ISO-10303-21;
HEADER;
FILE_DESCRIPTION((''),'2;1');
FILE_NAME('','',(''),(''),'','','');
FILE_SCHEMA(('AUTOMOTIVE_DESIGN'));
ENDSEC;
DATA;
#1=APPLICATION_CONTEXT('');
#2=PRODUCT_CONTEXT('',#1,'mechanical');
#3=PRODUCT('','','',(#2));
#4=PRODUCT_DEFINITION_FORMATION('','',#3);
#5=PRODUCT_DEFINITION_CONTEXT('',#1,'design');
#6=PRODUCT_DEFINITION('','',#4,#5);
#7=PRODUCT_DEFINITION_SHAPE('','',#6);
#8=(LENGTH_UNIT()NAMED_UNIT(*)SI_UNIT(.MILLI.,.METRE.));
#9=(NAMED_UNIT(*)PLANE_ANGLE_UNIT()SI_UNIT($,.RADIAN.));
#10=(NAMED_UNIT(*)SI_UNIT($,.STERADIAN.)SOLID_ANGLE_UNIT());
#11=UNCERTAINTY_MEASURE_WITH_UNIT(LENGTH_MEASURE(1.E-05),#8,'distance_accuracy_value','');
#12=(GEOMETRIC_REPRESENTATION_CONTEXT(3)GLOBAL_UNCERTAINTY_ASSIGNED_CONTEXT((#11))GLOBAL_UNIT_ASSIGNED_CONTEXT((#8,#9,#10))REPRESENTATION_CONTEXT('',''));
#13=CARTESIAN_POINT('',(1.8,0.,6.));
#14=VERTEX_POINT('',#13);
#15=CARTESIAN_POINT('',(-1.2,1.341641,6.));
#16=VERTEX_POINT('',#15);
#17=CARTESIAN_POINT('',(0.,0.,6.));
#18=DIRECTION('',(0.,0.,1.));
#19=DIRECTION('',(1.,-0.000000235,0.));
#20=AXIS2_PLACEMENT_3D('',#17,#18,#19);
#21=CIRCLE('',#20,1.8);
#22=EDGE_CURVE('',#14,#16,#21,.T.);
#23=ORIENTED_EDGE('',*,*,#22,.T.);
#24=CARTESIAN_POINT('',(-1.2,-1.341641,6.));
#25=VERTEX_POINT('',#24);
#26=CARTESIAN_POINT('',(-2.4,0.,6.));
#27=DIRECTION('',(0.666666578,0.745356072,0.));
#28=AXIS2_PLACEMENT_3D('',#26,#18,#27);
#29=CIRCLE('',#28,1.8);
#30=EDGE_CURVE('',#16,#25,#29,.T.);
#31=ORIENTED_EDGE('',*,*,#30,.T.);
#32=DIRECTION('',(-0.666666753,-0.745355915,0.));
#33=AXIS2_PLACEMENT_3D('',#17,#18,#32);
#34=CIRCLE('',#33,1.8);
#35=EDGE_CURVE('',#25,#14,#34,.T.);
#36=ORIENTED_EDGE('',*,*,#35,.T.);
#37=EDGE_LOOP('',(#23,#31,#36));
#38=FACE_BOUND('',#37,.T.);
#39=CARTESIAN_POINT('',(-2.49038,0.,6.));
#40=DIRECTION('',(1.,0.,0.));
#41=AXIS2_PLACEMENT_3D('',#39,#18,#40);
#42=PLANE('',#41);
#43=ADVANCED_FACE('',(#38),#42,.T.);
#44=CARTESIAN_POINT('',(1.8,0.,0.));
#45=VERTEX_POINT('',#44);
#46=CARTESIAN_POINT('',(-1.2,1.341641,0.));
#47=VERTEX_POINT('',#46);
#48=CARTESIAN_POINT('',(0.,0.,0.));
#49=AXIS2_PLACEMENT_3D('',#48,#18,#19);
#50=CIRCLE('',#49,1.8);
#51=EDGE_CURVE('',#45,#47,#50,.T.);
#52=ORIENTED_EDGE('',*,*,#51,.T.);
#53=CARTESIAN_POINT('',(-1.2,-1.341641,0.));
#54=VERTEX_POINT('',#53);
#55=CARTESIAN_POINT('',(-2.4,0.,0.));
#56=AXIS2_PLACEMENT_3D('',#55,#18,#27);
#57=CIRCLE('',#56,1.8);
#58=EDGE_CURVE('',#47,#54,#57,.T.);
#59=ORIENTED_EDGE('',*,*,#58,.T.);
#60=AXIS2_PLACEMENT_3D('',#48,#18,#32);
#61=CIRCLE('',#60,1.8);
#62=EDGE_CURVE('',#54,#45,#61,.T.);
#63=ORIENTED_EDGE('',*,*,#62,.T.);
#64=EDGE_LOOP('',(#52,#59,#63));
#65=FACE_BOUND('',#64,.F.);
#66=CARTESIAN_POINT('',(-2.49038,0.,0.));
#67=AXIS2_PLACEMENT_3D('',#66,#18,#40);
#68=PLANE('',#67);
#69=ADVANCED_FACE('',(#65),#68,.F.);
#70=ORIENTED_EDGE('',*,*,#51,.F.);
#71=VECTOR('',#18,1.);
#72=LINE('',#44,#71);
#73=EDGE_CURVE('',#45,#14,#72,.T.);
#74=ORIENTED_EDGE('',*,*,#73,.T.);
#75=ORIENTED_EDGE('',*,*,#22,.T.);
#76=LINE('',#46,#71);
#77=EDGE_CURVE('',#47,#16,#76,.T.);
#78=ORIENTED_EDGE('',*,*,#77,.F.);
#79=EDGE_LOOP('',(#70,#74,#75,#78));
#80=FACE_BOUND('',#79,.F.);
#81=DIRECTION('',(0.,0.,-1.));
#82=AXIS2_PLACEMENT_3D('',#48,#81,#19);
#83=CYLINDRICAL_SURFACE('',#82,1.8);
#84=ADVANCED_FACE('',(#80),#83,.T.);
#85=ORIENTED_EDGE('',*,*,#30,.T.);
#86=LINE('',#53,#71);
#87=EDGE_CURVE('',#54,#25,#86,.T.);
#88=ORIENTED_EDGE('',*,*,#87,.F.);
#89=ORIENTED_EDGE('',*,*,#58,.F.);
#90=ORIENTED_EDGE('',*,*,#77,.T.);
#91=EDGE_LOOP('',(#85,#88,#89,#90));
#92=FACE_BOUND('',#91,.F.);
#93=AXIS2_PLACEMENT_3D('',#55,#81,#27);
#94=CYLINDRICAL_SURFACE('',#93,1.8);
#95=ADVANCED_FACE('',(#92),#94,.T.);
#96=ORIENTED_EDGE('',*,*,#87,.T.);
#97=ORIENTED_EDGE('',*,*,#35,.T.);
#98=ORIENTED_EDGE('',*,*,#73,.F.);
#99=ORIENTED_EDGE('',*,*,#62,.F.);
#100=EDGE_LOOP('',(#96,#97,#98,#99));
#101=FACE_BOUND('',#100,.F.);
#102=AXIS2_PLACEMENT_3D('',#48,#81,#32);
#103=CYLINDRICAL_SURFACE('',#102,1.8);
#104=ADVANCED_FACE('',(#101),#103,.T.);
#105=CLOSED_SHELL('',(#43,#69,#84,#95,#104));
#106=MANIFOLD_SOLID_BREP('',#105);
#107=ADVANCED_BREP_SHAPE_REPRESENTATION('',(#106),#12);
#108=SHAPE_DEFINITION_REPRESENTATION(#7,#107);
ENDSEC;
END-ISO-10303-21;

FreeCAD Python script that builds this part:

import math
import FreeCAD as App
import Part
import Sketcher
from FreeCAD import Vector
Q = App.Units.Quantity

doc = App.newDocument("Part")
params = doc.addObject("Spreadsheet::Sheet", "Params")
for row, (alias, value) in enumerate([
    ("sketch1_radius", "1.8 mm"),
    ("pad1_length", "6 mm"),
], start=1):
    params.set(f"A{row}", alias)
    params.set(f"B{row}", "=" + value)
    params.setAlias(f"B{row}", alias)

body = doc.addObject("PartDesign::Body", "Body")

sketch1 = body.newObject("Sketcher::SketchObject", "Sketch")
sketch1.AttachmentSupport = (doc.getObject("XY_Plane"), [""])
sketch1.MapMode = "FlatFace"
sketch1.addGeometry(Part.ArcOfCircle(Part.Circle(Vector(-2.4, 0, 0), Vector(0, 0, 1), 1.8), math.radians(48), math.radians(312)), False)
sketch1.addGeometry(Part.ArcOfCircle(Part.Circle(Vector(0, 0, 0), Vector(0, 0, 1), 1.8), math.radians(-132), math.radians(0)), False)
sketch1.addGeometry(Part.ArcOfCircle(Part.Circle(Vector(0, 0, 0), Vector(0, 0, 1), 1.8), math.radians(0), math.radians(132)), False)
sketch1.addConstraint(Sketcher.Constraint("Coincident", 0, 2, 1, 1))
sketch1.addConstraint(Sketcher.Constraint("Tangent", 1, 2, 2, 1))
sketch1.addConstraint(Sketcher.Constraint("Coincident", 2, 2, 0, 1))
sketch1.addConstraint(Sketcher.Constraint("Coincident", 1, 3, -1, 1))
sketch1.addConstraint(Sketcher.Constraint("Equal", 0, 1))
sketch1.addConstraint(Sketcher.Constraint("Equal", 1, 2))
sketch1.addConstraint(Sketcher.Constraint("PointOnObject", 0, 3, -1))
sketch1.addConstraint(Sketcher.Constraint("PointOnObject", 1, 2, -1))
sketch1.addConstraint(Sketcher.Constraint("Radius", 0, Q("1.8 mm")))
sketch1.addConstraint(Sketcher.Constraint("DistanceX", 0, 2, 1, 2, Q("3 mm")))
sketch1.setExpression("Constraints[8]", "Params.sketch1_radius")
pad1 = body.newObject("PartDesign::Pad", "Pad")
pad1.Profile = sketch1
pad1.setExpression("Length", "Params.pad1_length")

doc.recompute()
